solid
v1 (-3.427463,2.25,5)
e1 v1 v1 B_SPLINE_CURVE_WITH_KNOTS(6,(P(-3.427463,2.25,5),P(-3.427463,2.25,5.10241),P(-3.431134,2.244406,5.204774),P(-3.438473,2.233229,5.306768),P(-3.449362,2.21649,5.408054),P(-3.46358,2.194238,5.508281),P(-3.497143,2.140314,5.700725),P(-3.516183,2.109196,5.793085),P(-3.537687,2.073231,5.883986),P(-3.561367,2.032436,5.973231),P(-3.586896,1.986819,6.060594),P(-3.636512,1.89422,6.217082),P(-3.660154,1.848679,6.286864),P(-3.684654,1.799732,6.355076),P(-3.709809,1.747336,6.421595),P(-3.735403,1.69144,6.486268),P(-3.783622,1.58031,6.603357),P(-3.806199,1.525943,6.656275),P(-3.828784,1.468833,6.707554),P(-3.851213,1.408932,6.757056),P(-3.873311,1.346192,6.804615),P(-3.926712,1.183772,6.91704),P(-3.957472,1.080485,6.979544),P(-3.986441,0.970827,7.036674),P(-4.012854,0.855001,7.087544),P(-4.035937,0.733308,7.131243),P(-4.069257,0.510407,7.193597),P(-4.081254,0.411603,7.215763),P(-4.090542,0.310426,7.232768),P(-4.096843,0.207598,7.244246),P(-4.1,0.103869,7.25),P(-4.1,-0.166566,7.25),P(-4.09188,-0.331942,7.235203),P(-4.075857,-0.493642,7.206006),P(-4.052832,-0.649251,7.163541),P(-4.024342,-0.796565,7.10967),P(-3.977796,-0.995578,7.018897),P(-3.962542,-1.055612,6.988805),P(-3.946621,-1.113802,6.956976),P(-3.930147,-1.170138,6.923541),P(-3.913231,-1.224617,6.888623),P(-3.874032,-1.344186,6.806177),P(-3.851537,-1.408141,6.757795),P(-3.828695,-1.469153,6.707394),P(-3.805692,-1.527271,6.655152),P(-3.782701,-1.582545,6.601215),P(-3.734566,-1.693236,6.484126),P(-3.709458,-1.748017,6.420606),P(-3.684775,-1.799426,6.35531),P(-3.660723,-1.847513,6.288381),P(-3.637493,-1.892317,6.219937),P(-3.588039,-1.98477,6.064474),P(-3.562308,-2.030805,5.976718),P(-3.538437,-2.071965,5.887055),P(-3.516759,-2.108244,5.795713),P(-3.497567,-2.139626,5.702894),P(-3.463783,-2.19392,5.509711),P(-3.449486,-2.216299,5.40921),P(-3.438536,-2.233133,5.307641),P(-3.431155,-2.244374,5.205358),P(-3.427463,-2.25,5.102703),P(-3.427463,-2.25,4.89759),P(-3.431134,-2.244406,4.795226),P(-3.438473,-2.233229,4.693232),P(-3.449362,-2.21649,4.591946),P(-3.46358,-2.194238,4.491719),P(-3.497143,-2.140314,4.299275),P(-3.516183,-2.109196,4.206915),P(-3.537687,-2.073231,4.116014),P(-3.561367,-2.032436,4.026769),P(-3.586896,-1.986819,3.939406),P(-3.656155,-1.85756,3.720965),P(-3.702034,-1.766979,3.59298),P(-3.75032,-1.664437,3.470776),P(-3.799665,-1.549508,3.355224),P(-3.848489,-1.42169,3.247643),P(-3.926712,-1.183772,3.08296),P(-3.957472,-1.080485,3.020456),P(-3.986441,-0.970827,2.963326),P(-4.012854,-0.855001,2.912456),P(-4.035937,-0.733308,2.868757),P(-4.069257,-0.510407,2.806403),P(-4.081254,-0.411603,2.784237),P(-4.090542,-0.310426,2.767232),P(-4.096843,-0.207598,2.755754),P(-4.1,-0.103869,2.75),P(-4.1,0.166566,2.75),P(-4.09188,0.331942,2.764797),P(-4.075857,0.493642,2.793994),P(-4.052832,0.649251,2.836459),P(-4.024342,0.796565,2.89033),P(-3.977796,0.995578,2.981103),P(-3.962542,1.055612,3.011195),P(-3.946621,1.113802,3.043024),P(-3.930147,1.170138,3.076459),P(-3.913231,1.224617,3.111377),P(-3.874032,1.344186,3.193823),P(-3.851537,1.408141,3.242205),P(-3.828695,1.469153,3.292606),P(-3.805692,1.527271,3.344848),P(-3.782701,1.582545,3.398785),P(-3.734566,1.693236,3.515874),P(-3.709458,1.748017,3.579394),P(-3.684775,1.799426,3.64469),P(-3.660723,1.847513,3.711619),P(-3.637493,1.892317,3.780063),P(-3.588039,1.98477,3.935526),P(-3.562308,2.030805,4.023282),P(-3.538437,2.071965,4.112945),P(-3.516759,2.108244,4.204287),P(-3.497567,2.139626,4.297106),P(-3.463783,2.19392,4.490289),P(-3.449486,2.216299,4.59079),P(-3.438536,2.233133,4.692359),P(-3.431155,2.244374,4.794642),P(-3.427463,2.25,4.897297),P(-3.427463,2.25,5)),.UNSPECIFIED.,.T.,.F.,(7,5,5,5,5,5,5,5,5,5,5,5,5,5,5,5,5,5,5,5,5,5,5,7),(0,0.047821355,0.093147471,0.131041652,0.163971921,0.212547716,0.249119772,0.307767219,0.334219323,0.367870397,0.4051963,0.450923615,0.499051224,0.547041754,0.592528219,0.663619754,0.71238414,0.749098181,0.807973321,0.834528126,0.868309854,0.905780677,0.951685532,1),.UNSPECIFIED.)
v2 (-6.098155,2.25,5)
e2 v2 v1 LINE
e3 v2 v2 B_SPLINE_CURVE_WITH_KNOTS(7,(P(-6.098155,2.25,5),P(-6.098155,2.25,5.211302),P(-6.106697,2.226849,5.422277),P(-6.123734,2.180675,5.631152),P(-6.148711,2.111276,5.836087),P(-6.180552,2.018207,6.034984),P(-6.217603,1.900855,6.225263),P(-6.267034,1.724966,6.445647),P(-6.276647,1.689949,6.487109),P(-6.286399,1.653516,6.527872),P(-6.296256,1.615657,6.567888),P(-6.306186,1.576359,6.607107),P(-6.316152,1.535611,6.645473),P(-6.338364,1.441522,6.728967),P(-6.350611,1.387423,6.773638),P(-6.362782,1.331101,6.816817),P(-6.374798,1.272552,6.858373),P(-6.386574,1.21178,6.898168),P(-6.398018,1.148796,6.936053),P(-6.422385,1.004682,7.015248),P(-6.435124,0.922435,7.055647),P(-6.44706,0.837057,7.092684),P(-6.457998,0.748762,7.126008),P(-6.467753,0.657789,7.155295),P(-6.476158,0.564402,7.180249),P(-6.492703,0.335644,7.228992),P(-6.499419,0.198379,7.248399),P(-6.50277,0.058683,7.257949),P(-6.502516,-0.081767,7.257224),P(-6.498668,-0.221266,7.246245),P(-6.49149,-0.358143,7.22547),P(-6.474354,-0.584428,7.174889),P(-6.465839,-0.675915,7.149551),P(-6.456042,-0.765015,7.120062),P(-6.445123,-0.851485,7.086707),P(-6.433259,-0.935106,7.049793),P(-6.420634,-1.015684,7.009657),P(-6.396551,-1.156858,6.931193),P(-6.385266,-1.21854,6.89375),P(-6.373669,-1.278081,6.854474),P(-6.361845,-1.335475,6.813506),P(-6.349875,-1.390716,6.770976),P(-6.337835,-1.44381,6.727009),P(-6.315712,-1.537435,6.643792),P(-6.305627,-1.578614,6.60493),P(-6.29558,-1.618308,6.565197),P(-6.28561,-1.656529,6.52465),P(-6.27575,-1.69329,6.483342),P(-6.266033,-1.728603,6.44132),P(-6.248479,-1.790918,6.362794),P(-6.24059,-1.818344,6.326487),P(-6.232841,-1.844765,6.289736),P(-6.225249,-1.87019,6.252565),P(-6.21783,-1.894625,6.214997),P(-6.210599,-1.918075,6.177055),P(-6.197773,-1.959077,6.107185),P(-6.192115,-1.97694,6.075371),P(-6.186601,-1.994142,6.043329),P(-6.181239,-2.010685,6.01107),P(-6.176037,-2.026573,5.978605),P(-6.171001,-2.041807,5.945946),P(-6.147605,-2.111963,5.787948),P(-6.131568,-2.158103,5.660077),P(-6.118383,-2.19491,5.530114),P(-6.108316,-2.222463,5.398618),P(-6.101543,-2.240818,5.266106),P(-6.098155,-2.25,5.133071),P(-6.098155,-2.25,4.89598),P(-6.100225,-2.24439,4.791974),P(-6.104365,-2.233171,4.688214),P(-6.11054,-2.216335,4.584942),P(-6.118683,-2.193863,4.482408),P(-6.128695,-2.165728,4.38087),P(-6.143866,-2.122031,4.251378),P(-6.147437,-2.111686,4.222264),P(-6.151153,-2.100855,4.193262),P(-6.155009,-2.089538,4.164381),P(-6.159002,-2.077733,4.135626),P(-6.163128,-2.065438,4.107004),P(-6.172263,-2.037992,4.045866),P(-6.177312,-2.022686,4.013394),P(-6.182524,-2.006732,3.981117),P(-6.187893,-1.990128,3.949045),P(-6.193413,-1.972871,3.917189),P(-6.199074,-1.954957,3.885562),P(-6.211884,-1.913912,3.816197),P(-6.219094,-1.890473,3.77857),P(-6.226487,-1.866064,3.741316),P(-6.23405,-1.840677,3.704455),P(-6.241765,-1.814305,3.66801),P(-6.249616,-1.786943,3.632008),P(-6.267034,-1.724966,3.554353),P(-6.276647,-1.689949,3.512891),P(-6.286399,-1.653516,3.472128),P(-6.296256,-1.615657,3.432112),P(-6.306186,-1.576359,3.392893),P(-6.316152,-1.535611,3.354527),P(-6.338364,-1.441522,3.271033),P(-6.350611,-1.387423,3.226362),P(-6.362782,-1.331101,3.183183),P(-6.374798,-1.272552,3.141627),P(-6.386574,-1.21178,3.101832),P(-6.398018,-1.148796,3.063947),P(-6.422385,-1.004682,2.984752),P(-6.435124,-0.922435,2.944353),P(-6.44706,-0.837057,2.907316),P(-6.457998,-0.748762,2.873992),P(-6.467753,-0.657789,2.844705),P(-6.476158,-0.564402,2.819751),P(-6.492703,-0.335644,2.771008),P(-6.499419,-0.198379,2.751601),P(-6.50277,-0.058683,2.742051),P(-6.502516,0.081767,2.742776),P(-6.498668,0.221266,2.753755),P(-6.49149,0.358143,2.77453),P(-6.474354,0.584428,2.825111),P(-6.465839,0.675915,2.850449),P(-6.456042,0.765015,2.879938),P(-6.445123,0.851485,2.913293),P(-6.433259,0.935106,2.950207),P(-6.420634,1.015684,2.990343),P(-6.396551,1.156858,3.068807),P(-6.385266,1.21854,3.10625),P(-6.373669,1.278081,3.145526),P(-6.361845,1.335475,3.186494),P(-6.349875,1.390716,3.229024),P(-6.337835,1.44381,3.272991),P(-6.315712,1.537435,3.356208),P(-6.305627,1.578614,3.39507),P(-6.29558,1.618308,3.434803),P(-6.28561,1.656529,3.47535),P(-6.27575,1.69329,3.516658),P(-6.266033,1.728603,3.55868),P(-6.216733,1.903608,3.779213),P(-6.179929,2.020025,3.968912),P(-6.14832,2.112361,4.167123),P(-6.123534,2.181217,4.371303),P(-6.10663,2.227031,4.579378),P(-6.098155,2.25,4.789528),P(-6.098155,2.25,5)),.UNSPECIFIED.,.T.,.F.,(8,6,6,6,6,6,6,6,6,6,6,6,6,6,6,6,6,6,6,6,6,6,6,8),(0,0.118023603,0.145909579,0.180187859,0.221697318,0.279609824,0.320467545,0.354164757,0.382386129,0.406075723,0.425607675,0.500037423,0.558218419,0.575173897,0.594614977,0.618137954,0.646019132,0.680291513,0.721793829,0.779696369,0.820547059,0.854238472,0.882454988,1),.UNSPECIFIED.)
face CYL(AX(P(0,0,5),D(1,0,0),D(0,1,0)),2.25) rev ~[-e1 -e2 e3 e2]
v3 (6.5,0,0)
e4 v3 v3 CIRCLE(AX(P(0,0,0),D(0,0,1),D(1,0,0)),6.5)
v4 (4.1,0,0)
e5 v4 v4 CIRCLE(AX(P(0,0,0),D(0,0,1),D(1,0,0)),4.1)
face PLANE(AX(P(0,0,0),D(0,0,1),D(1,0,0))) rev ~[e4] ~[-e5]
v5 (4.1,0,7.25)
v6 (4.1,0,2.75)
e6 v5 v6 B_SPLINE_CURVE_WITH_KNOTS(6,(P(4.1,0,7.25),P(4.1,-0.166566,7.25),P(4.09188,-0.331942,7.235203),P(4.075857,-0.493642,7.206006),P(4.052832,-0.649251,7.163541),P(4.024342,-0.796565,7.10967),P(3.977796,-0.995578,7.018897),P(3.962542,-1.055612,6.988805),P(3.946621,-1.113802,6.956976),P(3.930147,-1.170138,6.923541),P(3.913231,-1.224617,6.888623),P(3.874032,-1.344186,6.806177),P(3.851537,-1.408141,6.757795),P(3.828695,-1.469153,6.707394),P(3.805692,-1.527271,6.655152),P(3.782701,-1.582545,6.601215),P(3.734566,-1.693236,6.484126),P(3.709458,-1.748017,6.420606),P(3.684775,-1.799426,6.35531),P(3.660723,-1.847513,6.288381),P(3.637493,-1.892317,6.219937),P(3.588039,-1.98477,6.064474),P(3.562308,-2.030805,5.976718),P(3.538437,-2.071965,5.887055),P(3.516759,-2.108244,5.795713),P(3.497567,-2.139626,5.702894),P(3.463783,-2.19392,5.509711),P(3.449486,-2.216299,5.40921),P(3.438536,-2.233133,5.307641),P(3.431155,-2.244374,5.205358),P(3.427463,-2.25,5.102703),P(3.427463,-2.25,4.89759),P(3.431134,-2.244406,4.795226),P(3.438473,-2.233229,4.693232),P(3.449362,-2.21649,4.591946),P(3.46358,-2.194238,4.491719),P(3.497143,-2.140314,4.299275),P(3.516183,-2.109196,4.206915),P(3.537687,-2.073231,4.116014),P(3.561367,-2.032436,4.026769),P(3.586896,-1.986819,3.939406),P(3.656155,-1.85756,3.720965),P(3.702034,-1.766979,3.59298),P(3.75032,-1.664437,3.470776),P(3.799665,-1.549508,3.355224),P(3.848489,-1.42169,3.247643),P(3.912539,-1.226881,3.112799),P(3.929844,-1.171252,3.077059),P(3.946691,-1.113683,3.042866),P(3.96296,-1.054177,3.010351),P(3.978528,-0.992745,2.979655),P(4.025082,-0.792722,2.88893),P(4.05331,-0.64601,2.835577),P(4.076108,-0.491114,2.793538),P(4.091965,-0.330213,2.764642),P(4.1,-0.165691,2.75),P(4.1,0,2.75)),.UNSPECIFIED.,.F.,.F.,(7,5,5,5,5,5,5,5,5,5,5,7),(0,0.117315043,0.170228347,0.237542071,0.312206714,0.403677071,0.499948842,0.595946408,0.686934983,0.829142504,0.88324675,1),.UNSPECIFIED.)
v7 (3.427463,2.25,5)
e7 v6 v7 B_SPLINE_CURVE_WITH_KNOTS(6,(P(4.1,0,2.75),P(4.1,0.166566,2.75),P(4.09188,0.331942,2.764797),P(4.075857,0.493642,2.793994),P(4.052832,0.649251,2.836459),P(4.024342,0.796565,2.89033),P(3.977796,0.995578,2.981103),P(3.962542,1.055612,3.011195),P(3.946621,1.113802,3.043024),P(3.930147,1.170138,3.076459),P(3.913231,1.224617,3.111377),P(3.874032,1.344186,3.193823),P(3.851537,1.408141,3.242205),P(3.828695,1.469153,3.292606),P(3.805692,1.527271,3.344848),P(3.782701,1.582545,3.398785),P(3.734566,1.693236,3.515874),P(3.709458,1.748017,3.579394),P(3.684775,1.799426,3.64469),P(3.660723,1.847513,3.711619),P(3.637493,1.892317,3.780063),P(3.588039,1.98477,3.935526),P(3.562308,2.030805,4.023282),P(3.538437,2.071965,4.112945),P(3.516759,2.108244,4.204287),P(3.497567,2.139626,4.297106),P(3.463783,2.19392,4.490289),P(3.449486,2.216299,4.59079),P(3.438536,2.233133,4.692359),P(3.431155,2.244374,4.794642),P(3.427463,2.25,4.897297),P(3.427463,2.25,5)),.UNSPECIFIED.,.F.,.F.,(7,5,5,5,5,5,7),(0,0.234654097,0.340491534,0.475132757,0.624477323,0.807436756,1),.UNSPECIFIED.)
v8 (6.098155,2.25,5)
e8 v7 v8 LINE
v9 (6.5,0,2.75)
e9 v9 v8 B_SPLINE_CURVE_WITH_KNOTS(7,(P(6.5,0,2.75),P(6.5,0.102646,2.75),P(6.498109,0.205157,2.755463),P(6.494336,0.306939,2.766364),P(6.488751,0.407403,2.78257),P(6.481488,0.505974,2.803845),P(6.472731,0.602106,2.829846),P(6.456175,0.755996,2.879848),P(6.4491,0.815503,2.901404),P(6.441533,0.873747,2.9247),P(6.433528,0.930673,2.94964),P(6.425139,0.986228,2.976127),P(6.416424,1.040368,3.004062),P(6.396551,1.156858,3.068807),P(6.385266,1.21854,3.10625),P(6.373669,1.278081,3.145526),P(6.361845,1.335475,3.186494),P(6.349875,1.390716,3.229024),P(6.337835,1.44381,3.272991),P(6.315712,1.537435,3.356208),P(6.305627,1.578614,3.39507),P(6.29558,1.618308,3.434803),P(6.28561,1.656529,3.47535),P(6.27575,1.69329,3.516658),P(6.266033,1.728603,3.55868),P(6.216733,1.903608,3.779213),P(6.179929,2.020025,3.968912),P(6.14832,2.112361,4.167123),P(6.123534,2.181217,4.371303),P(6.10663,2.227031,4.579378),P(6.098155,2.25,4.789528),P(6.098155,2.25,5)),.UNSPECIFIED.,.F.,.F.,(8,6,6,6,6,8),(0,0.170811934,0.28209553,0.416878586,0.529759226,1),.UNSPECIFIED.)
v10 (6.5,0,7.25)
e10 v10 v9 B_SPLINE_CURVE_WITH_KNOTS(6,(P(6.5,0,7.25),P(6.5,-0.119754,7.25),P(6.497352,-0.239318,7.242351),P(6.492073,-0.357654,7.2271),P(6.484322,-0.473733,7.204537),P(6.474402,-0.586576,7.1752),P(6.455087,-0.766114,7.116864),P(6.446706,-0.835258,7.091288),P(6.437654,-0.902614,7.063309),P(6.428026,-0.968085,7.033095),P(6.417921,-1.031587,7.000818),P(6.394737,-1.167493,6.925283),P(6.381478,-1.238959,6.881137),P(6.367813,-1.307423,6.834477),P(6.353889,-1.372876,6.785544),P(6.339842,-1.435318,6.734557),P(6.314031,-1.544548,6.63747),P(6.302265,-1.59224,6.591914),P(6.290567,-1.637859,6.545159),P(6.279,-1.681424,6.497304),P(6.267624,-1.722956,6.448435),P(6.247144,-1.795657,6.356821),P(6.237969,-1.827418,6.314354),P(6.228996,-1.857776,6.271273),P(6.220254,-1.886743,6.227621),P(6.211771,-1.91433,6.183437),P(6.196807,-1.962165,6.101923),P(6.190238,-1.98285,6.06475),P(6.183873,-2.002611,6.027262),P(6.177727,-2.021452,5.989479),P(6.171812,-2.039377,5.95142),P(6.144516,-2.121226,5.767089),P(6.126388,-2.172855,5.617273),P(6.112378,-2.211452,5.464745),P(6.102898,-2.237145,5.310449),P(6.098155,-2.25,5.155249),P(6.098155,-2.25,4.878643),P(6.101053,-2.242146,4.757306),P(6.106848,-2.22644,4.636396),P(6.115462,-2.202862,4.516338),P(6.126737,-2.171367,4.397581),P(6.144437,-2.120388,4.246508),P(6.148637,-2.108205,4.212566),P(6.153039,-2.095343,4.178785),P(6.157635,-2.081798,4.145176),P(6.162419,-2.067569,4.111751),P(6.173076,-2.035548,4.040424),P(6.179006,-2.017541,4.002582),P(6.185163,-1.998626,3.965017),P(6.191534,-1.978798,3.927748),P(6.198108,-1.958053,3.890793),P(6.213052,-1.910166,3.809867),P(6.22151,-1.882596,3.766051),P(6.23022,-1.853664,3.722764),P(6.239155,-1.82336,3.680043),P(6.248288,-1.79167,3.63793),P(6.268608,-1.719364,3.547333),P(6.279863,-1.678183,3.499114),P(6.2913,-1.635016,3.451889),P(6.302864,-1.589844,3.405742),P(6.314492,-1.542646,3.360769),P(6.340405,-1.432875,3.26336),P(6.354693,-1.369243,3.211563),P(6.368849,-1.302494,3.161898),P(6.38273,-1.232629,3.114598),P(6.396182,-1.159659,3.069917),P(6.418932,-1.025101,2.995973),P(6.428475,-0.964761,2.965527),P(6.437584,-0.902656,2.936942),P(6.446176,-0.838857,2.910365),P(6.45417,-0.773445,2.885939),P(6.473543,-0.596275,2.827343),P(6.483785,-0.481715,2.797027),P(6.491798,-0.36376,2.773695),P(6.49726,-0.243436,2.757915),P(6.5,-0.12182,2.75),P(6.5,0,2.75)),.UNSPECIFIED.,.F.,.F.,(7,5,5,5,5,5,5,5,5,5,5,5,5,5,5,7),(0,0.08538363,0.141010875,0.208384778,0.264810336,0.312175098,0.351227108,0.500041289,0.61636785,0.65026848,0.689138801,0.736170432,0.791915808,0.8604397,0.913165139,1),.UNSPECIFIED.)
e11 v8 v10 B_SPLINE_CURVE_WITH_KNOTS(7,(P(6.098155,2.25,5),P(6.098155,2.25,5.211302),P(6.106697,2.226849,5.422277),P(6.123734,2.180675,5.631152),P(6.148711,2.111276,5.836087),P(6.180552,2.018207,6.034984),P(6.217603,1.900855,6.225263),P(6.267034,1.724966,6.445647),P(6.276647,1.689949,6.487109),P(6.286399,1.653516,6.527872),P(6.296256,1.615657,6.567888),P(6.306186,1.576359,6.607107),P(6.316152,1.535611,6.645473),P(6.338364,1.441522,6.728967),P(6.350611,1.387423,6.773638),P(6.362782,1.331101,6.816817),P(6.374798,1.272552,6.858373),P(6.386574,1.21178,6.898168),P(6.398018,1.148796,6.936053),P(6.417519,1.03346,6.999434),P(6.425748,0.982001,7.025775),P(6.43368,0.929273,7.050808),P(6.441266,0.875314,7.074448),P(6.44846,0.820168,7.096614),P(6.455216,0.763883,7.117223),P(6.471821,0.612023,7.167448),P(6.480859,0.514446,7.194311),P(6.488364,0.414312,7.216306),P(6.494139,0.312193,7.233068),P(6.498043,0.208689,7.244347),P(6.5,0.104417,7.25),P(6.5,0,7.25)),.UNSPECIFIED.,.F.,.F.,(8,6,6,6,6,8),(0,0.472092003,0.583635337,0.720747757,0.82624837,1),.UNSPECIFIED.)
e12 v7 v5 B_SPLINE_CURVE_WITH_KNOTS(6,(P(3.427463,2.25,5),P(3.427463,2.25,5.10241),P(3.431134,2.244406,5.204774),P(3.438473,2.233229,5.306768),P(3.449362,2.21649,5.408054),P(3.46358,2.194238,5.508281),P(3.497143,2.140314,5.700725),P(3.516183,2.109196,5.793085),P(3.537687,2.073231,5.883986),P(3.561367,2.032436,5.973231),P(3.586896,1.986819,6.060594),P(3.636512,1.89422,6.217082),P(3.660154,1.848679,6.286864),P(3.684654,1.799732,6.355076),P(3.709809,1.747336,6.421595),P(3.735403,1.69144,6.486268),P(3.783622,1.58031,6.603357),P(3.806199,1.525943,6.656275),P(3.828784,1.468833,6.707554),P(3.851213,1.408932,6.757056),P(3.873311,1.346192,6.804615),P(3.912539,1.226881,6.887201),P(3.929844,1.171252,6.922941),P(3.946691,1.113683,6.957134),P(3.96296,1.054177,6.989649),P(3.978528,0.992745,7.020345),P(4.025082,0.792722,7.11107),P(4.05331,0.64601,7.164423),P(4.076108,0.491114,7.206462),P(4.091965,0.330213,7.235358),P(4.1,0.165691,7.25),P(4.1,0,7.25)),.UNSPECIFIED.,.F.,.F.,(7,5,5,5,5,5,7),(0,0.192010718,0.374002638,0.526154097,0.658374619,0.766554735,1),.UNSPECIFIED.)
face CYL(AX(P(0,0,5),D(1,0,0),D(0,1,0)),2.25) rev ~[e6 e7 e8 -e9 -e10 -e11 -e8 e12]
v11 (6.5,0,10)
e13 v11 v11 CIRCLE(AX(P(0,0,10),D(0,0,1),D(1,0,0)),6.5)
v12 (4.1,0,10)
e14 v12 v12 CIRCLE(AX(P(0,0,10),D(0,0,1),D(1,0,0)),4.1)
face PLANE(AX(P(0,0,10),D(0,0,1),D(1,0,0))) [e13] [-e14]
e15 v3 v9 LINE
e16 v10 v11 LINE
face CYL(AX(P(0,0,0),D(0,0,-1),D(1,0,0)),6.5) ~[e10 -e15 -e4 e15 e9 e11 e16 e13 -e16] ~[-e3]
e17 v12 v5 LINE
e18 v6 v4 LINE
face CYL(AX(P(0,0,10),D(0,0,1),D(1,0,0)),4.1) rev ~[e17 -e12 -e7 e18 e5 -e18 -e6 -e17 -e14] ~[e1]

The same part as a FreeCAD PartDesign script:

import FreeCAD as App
import Part
import Sketcher
from FreeCAD import Vector
Q = App.Units.Quantity

doc = App.newDocument("Part")
body = doc.addObject("PartDesign::Body", "Body")

# Sketch on XY plane
sketch1 = doc.addObject("Sketcher::SketchObject", "Sketch")
body.addObject(sketch1)
sketch1.AttachmentSupport = (doc.XY_Plane, [""])
sketch1.MapMode = "FlatFace"
sketch1.addGeometry(Part.Circle(Vector(0, 0, 0), Vector(0, 0, 1), 6.5), False)
sketch1.addConstraint(Sketcher.Constraint("Coincident", 0, 3, -1, 1))
sketch1.addConstraint(Sketcher.Constraint("Diameter", 0, Q("13 mm")))
pad1 = doc.addObject("PartDesign::Pad", "Pad")
body.addObject(pad1)
pad1.Profile = sketch1
pad1.Length = 10

# Sketch on XY plane
sketch2 = doc.addObject("Sketcher::SketchObject", "Sketch001")
body.addObject(sketch2)
sketch2.AttachmentSupport = (doc.XY_Plane, [""])
sketch2.MapMode = "FlatFace"
sketch2.AttachmentOffset = App.Placement(Vector(0, 0, 10), App.Rotation())
sketch2.addGeometry(Part.Circle(Vector(0, 0, 0), Vector(0, 0, 1), 4.1), False)
sketch2.addConstraint(Sketcher.Constraint("Coincident", 0, 3, -1, 1))
sketch2.addConstraint(Sketcher.Constraint("Diameter", 0, Q("8.2 mm")))
pocket1 = doc.addObject("PartDesign::Pocket", "Pocket")
body.addObject(pocket1)
pocket1.Profile = sketch2
pocket1.Length = 10

# Sketch on YZ plane
sketch3 = doc.addObject("Sketcher::SketchObject", "Sketch002")
body.addObject(sketch3)
sketch3.AttachmentSupport = (doc.YZ_Plane, [""])
sketch3.MapMode = "FlatFace"
sketch3.addGeometry(Part.Circle(Vector(0, 5, 0), Vector(0, 0, 1), 2.25), False)
sketch3.addConstraint(Sketcher.Constraint("PointOnObject", 0, 3, -2))
sketch3.addConstraint(Sketcher.Constraint("Diameter", 0, Q("4.5 mm")))
sketch3.addConstraint(Sketcher.Constraint("DistanceY", -1, 1, 0, 3, Q("5 mm")))
pocket2 = doc.addObject("PartDesign::Pocket", "Pocket001")
body.addObject(pocket2)
pocket2.Profile = sketch3
pocket2.Length = 25
pocket2.Midplane = True

doc.recompute()
